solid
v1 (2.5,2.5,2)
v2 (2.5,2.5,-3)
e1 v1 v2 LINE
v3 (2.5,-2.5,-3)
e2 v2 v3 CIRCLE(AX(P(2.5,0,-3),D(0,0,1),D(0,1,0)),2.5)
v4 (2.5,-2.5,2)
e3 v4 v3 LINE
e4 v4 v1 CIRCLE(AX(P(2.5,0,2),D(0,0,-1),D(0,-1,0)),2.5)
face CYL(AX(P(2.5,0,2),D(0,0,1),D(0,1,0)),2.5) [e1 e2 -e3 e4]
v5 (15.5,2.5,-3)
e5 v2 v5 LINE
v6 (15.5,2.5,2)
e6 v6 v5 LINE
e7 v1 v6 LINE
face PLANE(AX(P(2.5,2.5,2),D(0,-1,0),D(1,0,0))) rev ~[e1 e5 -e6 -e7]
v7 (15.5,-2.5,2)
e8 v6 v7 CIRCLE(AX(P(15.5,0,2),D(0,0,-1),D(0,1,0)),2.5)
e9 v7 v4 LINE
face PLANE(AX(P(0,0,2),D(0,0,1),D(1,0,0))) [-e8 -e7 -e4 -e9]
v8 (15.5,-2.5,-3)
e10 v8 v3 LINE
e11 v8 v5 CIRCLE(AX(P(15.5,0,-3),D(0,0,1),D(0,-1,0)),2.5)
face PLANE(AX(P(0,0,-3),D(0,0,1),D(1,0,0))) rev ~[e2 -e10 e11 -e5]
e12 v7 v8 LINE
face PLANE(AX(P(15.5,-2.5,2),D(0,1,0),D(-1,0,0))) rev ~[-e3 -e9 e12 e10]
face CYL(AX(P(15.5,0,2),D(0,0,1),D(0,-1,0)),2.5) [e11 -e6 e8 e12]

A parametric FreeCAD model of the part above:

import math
import FreeCAD as App
import Part
import Sketcher

doc = App.newDocument("Part")
body = doc.addObject("PartDesign::Body", "Body")

# Sketch on XY plane
sketch1 = body.newObject("Sketcher::SketchObject", "Sketch")
sketch1.AttachmentSupport = (doc.getObject("XY_Plane"), [""])
sketch1.MapMode = "FlatFace"
sketch1.AttachmentOffset = App.Placement(App.Vector(0, 0, 2), App.Rotation())
sketch1.addGeometry(Part.LineSegment(App.Vector(15.5, 2.5, 0), App.Vector(2.5, 2.5, 0)), False)
sketch1.addGeometry(Part.ArcOfCircle(Part.Circle(App.Vector(2.5, 0, 0), App.Vector(0, 0, 1), 2.5), math.radians(90), math.radians(270)), False)
sketch1.addGeometry(Part.LineSegment(App.Vector(2.5, -2.5, 0), App.Vector(15.5, -2.5, 0)), False)
sketch1.addGeometry(Part.ArcOfCircle(Part.Circle(App.Vector(15.5, 0, 0), App.Vector(0, 0, 1), 2.5), math.radians(-90), math.radians(90)), False)
sketch1.addConstraint(Sketcher.Constraint("Tangent", 0, 2, 1, 1))
sketch1.addConstraint(Sketcher.Constraint("Tangent", 1, 2, 2, 1))
sketch1.addConstraint(Sketcher.Constraint("Tangent", 2, 2, 3, 1))
sketch1.addConstraint(Sketcher.Constraint("Tangent", 3, 2, 0, 1))
sketch1.addConstraint(Sketcher.Constraint("Horizontal", 0))
sketch1.addConstraint(Sketcher.Constraint("Horizontal", 2))
sketch1.addConstraint(Sketcher.Constraint("PointOnObject", 1, 3, -1))
sketch1.addConstraint(Sketcher.Constraint("Radius", 1, 2.5))
sketch1.addConstraint(Sketcher.Constraint("DistanceX", -1, 1, 1, 3, 2.5))
sketch1.addConstraint(Sketcher.Constraint("DistanceX", 0, 2, 0, 1, 13.0))
pad1 = body.newObject("PartDesign::Pad", "Pad")
pad1.Profile = sketch1
pad1.Length = 5
pad1.Reversed = True

doc.recompute()
